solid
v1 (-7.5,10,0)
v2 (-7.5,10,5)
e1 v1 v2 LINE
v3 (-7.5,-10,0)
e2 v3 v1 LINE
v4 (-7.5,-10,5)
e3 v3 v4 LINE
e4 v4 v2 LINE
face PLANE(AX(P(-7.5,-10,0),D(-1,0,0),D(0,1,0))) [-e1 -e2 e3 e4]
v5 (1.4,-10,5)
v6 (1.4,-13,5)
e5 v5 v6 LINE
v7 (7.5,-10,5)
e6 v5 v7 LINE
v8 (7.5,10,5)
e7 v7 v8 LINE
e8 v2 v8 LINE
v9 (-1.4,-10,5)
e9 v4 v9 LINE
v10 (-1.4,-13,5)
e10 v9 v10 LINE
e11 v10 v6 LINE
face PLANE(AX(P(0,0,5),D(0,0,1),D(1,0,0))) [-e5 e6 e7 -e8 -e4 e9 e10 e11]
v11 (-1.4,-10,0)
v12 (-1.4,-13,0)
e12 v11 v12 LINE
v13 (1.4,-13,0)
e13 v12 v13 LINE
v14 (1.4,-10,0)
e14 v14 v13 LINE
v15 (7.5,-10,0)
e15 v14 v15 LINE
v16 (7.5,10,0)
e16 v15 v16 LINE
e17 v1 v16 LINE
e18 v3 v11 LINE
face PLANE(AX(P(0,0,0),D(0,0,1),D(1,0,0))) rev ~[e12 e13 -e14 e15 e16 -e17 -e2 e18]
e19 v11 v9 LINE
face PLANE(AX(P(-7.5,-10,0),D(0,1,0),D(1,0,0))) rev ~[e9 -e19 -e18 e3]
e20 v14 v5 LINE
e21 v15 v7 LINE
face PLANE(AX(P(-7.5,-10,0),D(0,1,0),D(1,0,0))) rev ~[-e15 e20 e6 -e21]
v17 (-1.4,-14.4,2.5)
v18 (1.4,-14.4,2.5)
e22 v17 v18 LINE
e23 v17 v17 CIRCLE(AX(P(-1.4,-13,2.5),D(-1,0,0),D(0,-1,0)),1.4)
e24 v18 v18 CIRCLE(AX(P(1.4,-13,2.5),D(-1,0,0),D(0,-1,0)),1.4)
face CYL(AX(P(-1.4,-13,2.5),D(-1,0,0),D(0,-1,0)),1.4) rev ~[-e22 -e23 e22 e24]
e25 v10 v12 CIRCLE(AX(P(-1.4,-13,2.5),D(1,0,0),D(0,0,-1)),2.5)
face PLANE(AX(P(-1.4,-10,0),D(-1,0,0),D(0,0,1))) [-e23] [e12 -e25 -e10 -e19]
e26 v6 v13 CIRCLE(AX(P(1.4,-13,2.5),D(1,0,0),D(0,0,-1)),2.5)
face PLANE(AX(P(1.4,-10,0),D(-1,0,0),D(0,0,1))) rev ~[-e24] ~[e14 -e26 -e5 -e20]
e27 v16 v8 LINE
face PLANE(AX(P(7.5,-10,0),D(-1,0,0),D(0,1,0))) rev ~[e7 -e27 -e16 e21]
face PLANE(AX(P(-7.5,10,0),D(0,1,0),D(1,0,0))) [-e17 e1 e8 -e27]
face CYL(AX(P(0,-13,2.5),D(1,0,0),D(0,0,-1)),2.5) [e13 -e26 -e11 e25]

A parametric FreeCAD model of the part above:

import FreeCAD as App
import Part
import Sketcher
from FreeCAD import Vector
Q = App.Units.Quantity


def add_polygon(sketch, points):
    """Adds a closed chain of lines whose ends are joined by coincident constraints."""
    first, n = sketch.GeometryCount, len(points)
    for a, b in zip(points, points[1:] + points[:1]):
        sketch.addGeometry(Part.LineSegment(App.Vector(*a, 0), App.Vector(*b, 0)), False)
    for i in range(n):
        sketch.addConstraint(Sketcher.Constraint("Coincident", first + i, 2, first + (i + 1) % n, 1))

doc = App.newDocument("Part")
body = doc.addObject("PartDesign::Body", "Body")

# Sketch on XY plane
sketch1 = doc.addObject("Sketcher::SketchObject", "Sketch")
body.addObject(sketch1)
sketch1.AttachmentSupport = (doc.XY_Plane, [""])
sketch1.MapMode = "FlatFace"
add_polygon(sketch1, [(-8, 10), (-8, -10), (8, -10), (8, 10)])  # lines 0-3
sketch1.addConstraint(Sketcher.Constraint("Vertical", 0))
sketch1.addConstraint(Sketcher.Constraint("Horizontal", 1))
sketch1.addConstraint(Sketcher.Constraint("Vertical", 2))
sketch1.addConstraint(Sketcher.Constraint("Horizontal", 3))
sketch1.addConstraint(Sketcher.Constraint("Symmetric", 0, 2, 2, 2, -1, 1))
sketch1.addConstraint(Sketcher.Constraint("DistanceX", 1, 1, 1, 2, Q("15 mm")))
sketch1.addConstraint(Sketcher.Constraint("DistanceY", 0, 2, 0, 1, Q("20 mm")))
pad1 = doc.addObject("PartDesign::Pad", "Pad")
body.addObject(pad1)
pad1.Profile = sketch1
pad1.Length = 5

# Sketch on XZ plane
sketch2 = doc.addObject("Sketcher::SketchObject", "Sketch001")
body.addObject(sketch2)
sketch2.AttachmentSupport = (doc.XZ_Plane, [""])
sketch2.MapMode = "FlatFace"
sketch2.AttachmentOffset = App.Placement(Vector(0, 0, 10), App.Rotation())
add_polygon(sketch2, [(-1.4, 5), (-1.4, 0), (1.4, 0), (1.4, 5)])  # lines 0-3
sketch2.addConstraint(Sketcher.Constraint("Vertical", 0))
sketch2.addConstraint(Sketcher.Constraint("Horizontal", 1))
sketch2.addConstraint(Sketcher.Constraint("Vertical", 2))
sketch2.addConstraint(Sketcher.Constraint("Horizontal", 3))
sketch2.addConstraint(Sketcher.Constraint("Symmetric", 0, 2, 1, 2, -1, 1))
sketch2.addConstraint(Sketcher.Constraint("DistanceY", 0, 2, 0, 1, Q("5 mm")))
sketch2.addConstraint(Sketcher.Constraint("DistanceX", 1, 1, 1, 2, Q("2.8 mm")))
pad2 = doc.addObject("PartDesign::Pad", "Pad001")
body.addObject(pad2)
pad2.Profile = sketch2
pad2.Length = 3

# Sketch on XZ plane
sketch3 = doc.addObject("Sketcher::SketchObject", "Sketch002")
body.addObject(sketch3)
sketch3.AttachmentSupport = (doc.XZ_Plane, [""])
sketch3.MapMode = "FlatFace"
sketch3.AttachmentOffset = App.Placement(Vector(0, 0, 13), App.Rotation())
add_polygon(sketch3, [(-1.4, 2.5), (-1.4, 0), (1.4, 0), (1.4, 2.5)])  # lines 0-3
sketch3.addGeometry(Part.LineSegment(Vector(-1.4, 2.5, 0), Vector(1.4, 2.5, 0)), True)  # axis
sketch3.addConstraint(Sketcher.Constraint("Vertical", 0))
sketch3.addConstraint(Sketcher.Constraint("Horizontal", 1))
sketch3.addConstraint(Sketcher.Constraint("Vertical", 2))
sketch3.addConstraint(Sketcher.Constraint("Horizontal", 3))
sketch3.addConstraint(Sketcher.Constraint("Horizontal", 4))
sketch3.addConstraint(Sketcher.Constraint("Coincident", 4, 1, 3, 2))
sketch3.addConstraint(Sketcher.Constraint("Symmetric", 0, 2, 1, 2, -1, 1))
sketch3.addConstraint(Sketcher.Constraint("Vertical", 1, 2, 4, 2))
sketch3.addConstraint(Sketcher.Constraint("DistanceX", 1, 1, 1, 2, Q("2.8 mm")))
sketch3.addConstraint(Sketcher.Constraint("DistanceY", 0, 2, 0, 1, Q("2.5 mm")))
revolution = doc.addObject("PartDesign::Revolution", "Revolution")
body.addObject(revolution)
revolution.Profile = sketch3
revolution.ReferenceAxis = (sketch3, ["Axis0"])
revolution.Angle = 360

# Sketch on YZ plane
sketch4 = doc.addObject("Sketcher::SketchObject", "Sketch003")
body.addObject(sketch4)
sketch4.AttachmentSupport = (doc.YZ_Plane, [""])
sketch4.MapMode = "FlatFace"
sketch4.AttachmentOffset = App.Placement(Vector(0, 0, -1.4), App.Rotation())
sketch4.addGeometry(Part.Circle(Vector(-13, 2.5, 0), Vector(0, 0, 1), 1.4), False)
sketch4.addConstraint(Sketcher.Constraint("Diameter", 0, Q("2.8 mm")))
sketch4.addConstraint(Sketcher.Constraint("DistanceX", 0, 3, -1, 1, Q("13 mm")))
sketch4.addConstraint(Sketcher.Constraint("DistanceY", -1, 1, 0, 3, Q("2.5 mm")))
pocket1 = doc.addObject("PartDesign::Pocket", "Pocket")
body.addObject(pocket1)
pocket1.Profile = sketch4
pocket1.Length = 5
pocket1.Reversed = True

doc.recompute()
